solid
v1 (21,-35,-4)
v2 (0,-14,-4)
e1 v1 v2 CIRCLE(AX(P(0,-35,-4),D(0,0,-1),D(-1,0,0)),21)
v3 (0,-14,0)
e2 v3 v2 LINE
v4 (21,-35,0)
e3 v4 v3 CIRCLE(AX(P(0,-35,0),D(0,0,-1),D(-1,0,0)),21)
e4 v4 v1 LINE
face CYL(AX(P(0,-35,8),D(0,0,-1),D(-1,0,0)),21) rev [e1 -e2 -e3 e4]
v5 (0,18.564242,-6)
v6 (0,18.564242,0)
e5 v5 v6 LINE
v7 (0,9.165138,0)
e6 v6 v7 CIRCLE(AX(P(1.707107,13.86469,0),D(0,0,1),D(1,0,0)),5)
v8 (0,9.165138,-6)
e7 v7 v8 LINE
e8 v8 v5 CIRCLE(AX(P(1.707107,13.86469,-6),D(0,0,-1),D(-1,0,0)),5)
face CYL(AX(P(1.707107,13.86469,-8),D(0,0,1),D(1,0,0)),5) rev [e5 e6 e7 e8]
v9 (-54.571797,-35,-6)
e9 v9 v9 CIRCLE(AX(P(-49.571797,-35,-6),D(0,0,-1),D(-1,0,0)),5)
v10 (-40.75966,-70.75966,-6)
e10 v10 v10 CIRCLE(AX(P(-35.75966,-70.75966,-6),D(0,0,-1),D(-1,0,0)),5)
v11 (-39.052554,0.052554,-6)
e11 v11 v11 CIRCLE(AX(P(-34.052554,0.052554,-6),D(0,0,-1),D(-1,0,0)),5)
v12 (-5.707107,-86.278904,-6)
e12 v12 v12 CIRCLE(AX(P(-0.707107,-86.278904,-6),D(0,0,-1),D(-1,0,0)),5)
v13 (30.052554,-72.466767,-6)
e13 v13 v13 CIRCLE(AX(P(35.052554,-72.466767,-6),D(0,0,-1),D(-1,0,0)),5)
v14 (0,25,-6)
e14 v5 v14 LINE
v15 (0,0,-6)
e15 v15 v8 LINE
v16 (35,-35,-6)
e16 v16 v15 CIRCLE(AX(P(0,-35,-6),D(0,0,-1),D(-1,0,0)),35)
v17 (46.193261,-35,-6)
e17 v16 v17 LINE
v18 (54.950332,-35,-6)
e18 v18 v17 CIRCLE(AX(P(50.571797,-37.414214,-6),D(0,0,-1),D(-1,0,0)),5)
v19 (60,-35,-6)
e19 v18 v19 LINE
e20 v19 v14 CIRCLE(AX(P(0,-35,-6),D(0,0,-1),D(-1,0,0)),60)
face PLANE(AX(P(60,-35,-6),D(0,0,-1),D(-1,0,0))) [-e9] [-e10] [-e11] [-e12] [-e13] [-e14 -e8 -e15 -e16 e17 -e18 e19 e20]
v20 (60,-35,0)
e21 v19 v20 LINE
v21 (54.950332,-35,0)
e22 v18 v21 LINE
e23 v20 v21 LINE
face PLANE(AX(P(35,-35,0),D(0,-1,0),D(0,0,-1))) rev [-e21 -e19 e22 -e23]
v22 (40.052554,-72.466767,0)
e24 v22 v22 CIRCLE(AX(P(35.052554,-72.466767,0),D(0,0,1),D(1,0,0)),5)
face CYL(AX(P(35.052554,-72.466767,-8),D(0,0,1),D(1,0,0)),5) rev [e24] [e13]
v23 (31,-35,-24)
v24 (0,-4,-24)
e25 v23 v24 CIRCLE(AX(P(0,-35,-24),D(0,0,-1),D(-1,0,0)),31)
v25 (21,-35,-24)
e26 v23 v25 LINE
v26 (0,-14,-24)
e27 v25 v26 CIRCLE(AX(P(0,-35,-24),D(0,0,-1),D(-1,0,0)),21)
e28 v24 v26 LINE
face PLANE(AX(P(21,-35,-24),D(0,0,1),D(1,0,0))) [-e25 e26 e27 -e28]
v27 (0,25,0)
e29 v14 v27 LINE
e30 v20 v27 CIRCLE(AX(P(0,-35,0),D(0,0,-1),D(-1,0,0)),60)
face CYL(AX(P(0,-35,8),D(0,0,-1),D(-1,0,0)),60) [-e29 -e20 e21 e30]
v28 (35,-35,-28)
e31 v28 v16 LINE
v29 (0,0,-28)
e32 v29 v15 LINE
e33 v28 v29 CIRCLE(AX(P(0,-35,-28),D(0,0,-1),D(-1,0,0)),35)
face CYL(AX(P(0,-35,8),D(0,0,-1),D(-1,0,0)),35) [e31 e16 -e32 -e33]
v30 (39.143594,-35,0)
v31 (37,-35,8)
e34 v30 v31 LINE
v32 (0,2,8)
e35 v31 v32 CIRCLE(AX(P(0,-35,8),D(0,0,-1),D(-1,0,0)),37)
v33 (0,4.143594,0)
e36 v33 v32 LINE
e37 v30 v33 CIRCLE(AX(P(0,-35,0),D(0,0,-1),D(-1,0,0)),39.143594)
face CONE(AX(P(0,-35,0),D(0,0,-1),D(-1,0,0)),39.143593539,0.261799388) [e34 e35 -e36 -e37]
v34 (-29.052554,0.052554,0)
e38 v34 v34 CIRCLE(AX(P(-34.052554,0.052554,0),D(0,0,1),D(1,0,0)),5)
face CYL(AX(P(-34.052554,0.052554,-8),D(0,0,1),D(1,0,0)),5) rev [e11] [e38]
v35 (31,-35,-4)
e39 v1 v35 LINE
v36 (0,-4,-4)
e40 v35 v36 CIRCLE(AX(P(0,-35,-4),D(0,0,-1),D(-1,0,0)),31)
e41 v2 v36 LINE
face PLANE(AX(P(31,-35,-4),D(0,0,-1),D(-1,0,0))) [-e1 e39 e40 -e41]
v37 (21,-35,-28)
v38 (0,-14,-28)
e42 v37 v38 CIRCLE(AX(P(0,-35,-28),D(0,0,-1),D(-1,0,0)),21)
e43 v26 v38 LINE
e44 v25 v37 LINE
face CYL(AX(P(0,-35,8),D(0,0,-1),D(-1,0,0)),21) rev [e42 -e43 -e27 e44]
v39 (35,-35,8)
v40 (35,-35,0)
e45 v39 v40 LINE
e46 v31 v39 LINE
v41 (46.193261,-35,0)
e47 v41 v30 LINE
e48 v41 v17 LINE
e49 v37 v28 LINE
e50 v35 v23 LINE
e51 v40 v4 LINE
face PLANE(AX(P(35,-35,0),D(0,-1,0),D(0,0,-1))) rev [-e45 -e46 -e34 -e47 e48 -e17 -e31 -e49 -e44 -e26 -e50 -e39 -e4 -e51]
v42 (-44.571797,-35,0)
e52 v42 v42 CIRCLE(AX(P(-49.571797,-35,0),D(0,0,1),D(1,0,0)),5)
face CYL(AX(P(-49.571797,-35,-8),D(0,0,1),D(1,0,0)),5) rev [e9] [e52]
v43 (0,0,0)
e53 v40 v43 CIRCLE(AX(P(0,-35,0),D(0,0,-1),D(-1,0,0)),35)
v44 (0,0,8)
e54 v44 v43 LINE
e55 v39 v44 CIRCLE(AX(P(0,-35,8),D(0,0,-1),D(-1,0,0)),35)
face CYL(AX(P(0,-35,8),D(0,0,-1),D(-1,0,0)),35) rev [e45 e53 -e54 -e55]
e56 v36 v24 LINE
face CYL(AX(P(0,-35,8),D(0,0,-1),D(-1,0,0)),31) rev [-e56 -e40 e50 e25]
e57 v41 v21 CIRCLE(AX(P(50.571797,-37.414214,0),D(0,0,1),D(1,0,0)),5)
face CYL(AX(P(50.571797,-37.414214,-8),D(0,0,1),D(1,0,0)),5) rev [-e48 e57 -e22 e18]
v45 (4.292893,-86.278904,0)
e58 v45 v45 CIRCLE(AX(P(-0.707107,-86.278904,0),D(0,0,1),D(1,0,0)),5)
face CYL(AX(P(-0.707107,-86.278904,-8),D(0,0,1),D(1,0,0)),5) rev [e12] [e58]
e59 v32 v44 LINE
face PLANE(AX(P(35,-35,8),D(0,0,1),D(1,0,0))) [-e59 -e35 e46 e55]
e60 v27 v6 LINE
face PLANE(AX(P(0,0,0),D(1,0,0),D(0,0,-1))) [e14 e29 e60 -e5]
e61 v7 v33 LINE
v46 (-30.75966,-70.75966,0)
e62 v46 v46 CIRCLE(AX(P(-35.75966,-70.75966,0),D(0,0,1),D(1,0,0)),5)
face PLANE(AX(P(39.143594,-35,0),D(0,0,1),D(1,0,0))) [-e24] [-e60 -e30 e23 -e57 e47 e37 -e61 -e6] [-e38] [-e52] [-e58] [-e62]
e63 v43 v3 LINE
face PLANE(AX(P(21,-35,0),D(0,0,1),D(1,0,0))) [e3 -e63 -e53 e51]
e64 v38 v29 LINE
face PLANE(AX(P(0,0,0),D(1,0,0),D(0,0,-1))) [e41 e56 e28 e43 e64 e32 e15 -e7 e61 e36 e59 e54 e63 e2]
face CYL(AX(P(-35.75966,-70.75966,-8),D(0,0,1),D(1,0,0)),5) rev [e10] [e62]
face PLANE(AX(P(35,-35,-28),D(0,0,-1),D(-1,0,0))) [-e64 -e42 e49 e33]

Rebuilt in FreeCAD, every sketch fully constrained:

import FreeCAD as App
import Part
import Sketcher
from FreeCAD import Vector
Q = App.Units.Quantity

doc = App.newDocument("Part")
body = doc.addObject("PartDesign::Body", "Body")

# Sketch on YZ plane
sketch1 = body.newObject("Sketcher::SketchObject", "Sketch")
sketch1.AttachmentSupport = (doc.getObject("YZ_Plane"), [""])
sketch1.MapMode = "FlatFace"
sketch1.addGeometry(Part.LineSegment(Vector(0, 8, 0), Vector(0, 0, 0)), False)
sketch1.addGeometry(Part.LineSegment(Vector(0, 0, 0), Vector(-14, 0, 0)), False)
sketch1.addGeometry(Part.LineSegment(Vector(-14, 0, 0), Vector(-14, -4, 0)), False)
sketch1.addGeometry(Part.LineSegment(Vector(-14, -4, 0), Vector(-4, -4, 0)), False)
sketch1.addGeometry(Part.LineSegment(Vector(-4, -4, 0), Vector(-4, -24, 0)), False)
sketch1.addGeometry(Part.LineSegment(Vector(-4, -24, 0), Vector(-14, -24, 0)), False)
sketch1.addGeometry(Part.LineSegment(Vector(-14, -24, 0), Vector(-14, -28, 0)), False)
sketch1.addGeometry(Part.LineSegment(Vector(-14, -28, 0), Vector(0, -28, 0)), False)
sketch1.addGeometry(Part.LineSegment(Vector(0, -28, 0), Vector(0, -6, 0)), False)
sketch1.addGeometry(Part.LineSegment(Vector(0, -6, 0), Vector(25, -6, 0)), False)
sketch1.addGeometry(Part.LineSegment(Vector(25, -6, 0), Vector(25, 0, 0)), False)
sketch1.addGeometry(Part.LineSegment(Vector(25, 0, 0), Vector(4.1, 0, 0)), False)
sketch1.addGeometry(Part.LineSegment(Vector(4.1, 0, 0), Vector(2, 8, 0)), False)
sketch1.addGeometry(Part.LineSegment(Vector(2, 8, 0), Vector(0, 8, 0)), False)
sketch1.addGeometry(Part.LineSegment(Vector(-35, -28, 0), Vector(-35, 8, 0)), True)  # axis
sketch1.addConstraint(Sketcher.Constraint("Coincident", 0, 2, 1, 1))
sketch1.addConstraint(Sketcher.Constraint("Coincident", 1, 2, 2, 1))
sketch1.addConstraint(Sketcher.Constraint("Coincident", 2, 2, 3, 1))
sketch1.addConstraint(Sketcher.Constraint("Coincident", 3, 2, 4, 1))
sketch1.addConstraint(Sketcher.Constraint("Coincident", 4, 2, 5, 1))
sketch1.addConstraint(Sketcher.Constraint("Coincident", 5, 2, 6, 1))
sketch1.addConstraint(Sketcher.Constraint("Coincident", 6, 2, 7, 1))
sketch1.addConstraint(Sketcher.Constraint("Coincident", 7, 2, 8, 1))
sketch1.addConstraint(Sketcher.Constraint("Coincident", 8, 2, 9, 1))
sketch1.addConstraint(Sketcher.Constraint("Coincident", 9, 2, 10, 1))
sketch1.addConstraint(Sketcher.Constraint("Coincident", 10, 2, 11, 1))
sketch1.addConstraint(Sketcher.Constraint("Coincident", 11, 2, 12, 1))
sketch1.addConstraint(Sketcher.Constraint("Coincident", 12, 2, 13, 1))
sketch1.addConstraint(Sketcher.Constraint("Coincident", 13, 2, 0, 1))
sketch1.addConstraint(Sketcher.Constraint("Vertical", 0))
sketch1.addConstraint(Sketcher.Constraint("Horizontal", 1))
sketch1.addConstraint(Sketcher.Constraint("Vertical", 2))
sketch1.addConstraint(Sketcher.Constraint("Horizontal", 3))
sketch1.addConstraint(Sketcher.Constraint("Vertical", 4))
sketch1.addConstraint(Sketcher.Constraint("Horizontal", 5))
sketch1.addConstraint(Sketcher.Constraint("Vertical", 6))
sketch1.addConstraint(Sketcher.Constraint("Horizontal", 7))
sketch1.addConstraint(Sketcher.Constraint("Vertical", 8))
sketch1.addConstraint(Sketcher.Constraint("Horizontal", 9))
sketch1.addConstraint(Sketcher.Constraint("Vertical", 10))
sketch1.addConstraint(Sketcher.Constraint("Horizontal", 11))
sketch1.addConstraint(Sketcher.Constraint("Horizontal", 13))
sketch1.addConstraint(Sketcher.Constraint("Vertical", 14))
sketch1.addConstraint(Sketcher.Constraint("Coincident", 0, 2, -1, 1))
sketch1.addConstraint(Sketcher.Constraint("PointOnObject", 7, 2, -2))
sketch1.addConstraint(Sketcher.Constraint("PointOnObject", 10, 2, -1))
sketch1.addConstraint(Sketcher.Constraint("Horizontal", 7, 2, 14, 1))
sketch1.addConstraint(Sketcher.Constraint("Horizontal", 13, 2, 14, 2))
sketch1.addConstraint(Sketcher.Constraint("Vertical", 2, 2, 5, 2))
sketch1.addConstraint(Sketcher.Constraint("Equal", 2, 6))
sketch1.addConstraint(Sketcher.Constraint("DistanceX", 1, 2, 1, 1, 14.0))
sketch1.addConstraint(Sketcher.Constraint("DistanceX", 3, 1, 3, 2, 10.0))
sketch1.addConstraint(Sketcher.Constraint("DistanceX", 9, 1, 9, 2, 25.0))
sketch1.addConstraint(Sketcher.Constraint("DistanceX", 13, 2, 13, 1, 2.0))
sketch1.addConstraint(Sketcher.Constraint("DistanceY", 0, 2, 0, 1, 8.0))
sketch1.addConstraint(Sketcher.Constraint("DistanceY", 2, 2, 2, 1, 4.0))
sketch1.addConstraint(Sketcher.Constraint("DistanceY", 4, 2, 4, 1, 20.0))
sketch1.addConstraint(Sketcher.Constraint("DistanceY", 8, 1, 8, 2, 22.0))
sketch1.addConstraint(Sketcher.Constraint("Angle", 12, Q("105 deg")))
sketch1.addConstraint(Sketcher.Constraint("DistanceX", 14, 1, -1, 1, 35.0))
revolution = body.newObject("PartDesign::Revolution", "Revolution")
revolution.Profile = sketch1
revolution.ReferenceAxis = (sketch1, ["Axis0"])
revolution.Angle = 270

# Sketch on XY plane
sketch2 = body.newObject("Sketcher::SketchObject", "Sketch001")
sketch2.AttachmentSupport = (doc.getObject("XY_Plane"), [""])
sketch2.MapMode = "FlatFace"
sketch2.addGeometry(Part.Circle(Vector(-50, -35, 0), Vector(0, 0, 1), 5), False)
sketch2.addGeometry(Part.Circle(Vector(-36, -71, 0), Vector(0, 0, 1), 5), False)
sketch2.addGeometry(Part.Circle(Vector(-1, -86, 0), Vector(0, 0, 1), 5), False)
sketch2.addGeometry(Part.Circle(Vector(35, -72, 0), Vector(0, 0, 1), 5), False)
sketch2.addGeometry(Part.Circle(Vector(51, -37, 0), Vector(0, 0, 1), 5), False)
sketch2.addGeometry(Part.Circle(Vector(37, -2, 0), Vector(0, 0, 1), 5), False)
sketch2.addGeometry(Part.Circle(Vector(2, 14, 0), Vector(0, 0, 1), 5), False)
sketch2.addGeometry(Part.Circle(Vector(-34, 0, 0), Vector(0, 0, 1), 5), False)
sketch2.addConstraint(Sketcher.Constraint("Equal", 0, 1))
sketch2.addConstraint(Sketcher.Constraint("Equal", 1, 2))
sketch2.addConstraint(Sketcher.Constraint("Equal", 2, 3))
sketch2.addConstraint(Sketcher.Constraint("Equal", 3, 4))
sketch2.addConstraint(Sketcher.Constraint("Equal", 4, 5))
sketch2.addConstraint(Sketcher.Constraint("Equal", 5, 6))
sketch2.addConstraint(Sketcher.Constraint("Equal", 6, 7))
sketch2.addConstraint(Sketcher.Constraint("Diameter", 0, 10.0))
sketch2.addConstraint(Sketcher.Constraint("DistanceY", 0, 3, -1, 1, 35.0))
sketch2.addConstraint(Sketcher.Constraint("DistanceX", 1, 3, -1, 1, 35.75966))
sketch2.addConstraint(Sketcher.Constraint("DistanceY", 1, 3, -1, 1, 70.75966))
sketch2.addConstraint(Sketcher.Constraint("DistanceX", -1, 1, 5, 3, 36.75966))
sketch2.addConstraint(Sketcher.Constraint("DistanceY", -1, 1, 6, 3, 13.86469))
sketch2.addConstraint(Sketcher.Constraint("DistanceX", 0, 3, 2, 3, 48.86469))
sketch2.addConstraint(Sketcher.Constraint("DistanceX", 2, 3, 3, 3, 35.75966))
sketch2.addConstraint(Sketcher.Constraint("DistanceY", 2, 3, 4, 3, 48.86469))
sketch2.addConstraint(Sketcher.Constraint("DistanceY", 4, 3, 5, 3, 35.75966))
sketch2.addConstraint(Sketcher.Constraint("DistanceX", 6, 3, 4, 3, 48.86469))
sketch2.addConstraint(Sketcher.Constraint("DistanceX", 7, 3, 6, 3, 35.75966))
sketch2.addConstraint(Sketcher.Constraint("DistanceX", 0, 3, -1, 1, 49.571797))
sketch2.addConstraint(Sketcher.Constraint("DistanceY", 2, 3, -1, 1, 86.278904))
sketch2.addConstraint(Sketcher.Constraint("DistanceY", 3, 3, -1, 1, 72.466767))
sketch2.addConstraint(Sketcher.Constraint("DistanceX", -1, 1, 4, 3, 50.571797))
sketch2.addConstraint(Sketcher.Constraint("DistanceY", -1, 1, 7, 3, 0.052554))
pocket1 = body.newObject("PartDesign::Pocket", "Pocket")
pocket1.Profile = sketch2
pocket1.Length = 8

doc.recompute()
